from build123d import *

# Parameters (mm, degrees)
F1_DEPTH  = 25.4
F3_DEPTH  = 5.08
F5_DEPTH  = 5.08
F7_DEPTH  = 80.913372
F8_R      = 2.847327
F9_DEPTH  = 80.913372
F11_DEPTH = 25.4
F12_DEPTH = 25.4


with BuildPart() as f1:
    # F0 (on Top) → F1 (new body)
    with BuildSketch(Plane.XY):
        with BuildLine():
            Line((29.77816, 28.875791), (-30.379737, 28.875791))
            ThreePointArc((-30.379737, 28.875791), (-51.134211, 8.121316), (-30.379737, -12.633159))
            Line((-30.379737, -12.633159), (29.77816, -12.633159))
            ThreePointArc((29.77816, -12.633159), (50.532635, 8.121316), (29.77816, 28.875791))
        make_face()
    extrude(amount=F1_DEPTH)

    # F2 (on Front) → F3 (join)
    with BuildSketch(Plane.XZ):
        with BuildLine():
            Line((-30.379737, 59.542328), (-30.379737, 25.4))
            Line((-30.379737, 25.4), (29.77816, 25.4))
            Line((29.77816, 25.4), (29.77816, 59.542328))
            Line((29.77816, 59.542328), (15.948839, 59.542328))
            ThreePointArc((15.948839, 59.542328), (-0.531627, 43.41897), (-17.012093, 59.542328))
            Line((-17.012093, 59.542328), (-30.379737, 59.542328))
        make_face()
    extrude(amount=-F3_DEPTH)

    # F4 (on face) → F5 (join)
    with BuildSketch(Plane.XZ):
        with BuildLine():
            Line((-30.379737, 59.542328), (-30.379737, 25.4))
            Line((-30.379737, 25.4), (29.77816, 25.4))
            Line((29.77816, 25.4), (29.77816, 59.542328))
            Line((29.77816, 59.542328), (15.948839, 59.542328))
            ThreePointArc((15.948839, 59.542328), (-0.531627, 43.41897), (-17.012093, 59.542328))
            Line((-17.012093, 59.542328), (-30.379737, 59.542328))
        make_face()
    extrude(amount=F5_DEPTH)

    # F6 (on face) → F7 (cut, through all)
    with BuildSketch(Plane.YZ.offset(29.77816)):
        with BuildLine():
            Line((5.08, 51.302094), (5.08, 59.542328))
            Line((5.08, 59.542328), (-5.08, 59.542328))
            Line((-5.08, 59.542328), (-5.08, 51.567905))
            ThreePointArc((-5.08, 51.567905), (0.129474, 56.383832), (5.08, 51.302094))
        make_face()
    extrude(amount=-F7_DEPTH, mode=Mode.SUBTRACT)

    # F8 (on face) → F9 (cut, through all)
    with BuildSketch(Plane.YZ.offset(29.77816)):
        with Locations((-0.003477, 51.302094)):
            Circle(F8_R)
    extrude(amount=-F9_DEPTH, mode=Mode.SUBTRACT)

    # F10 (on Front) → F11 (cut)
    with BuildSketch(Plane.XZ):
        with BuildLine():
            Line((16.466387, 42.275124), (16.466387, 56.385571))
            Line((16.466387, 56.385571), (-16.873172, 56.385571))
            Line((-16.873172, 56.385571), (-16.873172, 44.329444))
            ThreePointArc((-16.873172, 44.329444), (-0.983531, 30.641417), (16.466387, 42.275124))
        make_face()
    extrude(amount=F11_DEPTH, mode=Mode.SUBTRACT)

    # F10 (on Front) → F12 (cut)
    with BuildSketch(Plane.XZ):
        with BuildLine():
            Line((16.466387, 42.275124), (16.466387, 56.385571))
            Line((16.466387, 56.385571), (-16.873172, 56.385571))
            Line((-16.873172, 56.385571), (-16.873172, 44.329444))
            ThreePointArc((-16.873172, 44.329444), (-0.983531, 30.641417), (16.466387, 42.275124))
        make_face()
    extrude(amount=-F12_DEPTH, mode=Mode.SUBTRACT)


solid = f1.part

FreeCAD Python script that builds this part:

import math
import FreeCAD as App
import Part
import Sketcher
Q = App.Units.Quantity

doc = App.newDocument("Part")
params = doc.addObject("Spreadsheet::Sheet", "Params")
for row, (alias, value) in enumerate([
    ("pad1_length", "1 in"),
    ("pad2_length", "0.2 in"),
    ("pad3_length", "0.2 in"),
    ("sketch4_width", "0.4 in"),
    ("pocket3_length", "1 in"),
    ("pocket4_length", "1 in"),
], start=1):
    params.set(f"A{row}", alias)
    params.set(f"B{row}", "=" + value)
    params.setAlias(f"B{row}", alias)

body = doc.addObject("PartDesign::Body", "Body")

sketch1 = body.newObject("Sketcher::SketchObject", "Sketch")
sketch1.AttachmentSupport = (doc.getObject("XY_Plane"), [""])
sketch1.MapMode = "FlatFace"
sketch1.addGeometry(Part.LineSegment(App.Vector(30, 29, 0), App.Vector(-30, 29, 0)), False)
sketch1.addGeometry(Part.ArcOfCircle(Part.Circle(App.Vector(-30, 8, 0), App.Vector(0, 0, 1), 21), math.radians(90), math.radians(270)), False)
sketch1.addGeometry(Part.LineSegment(App.Vector(-30, -13, 0), App.Vector(30, -13, 0)), False)
sketch1.addGeometry(Part.ArcOfCircle(Part.Circle(App.Vector(30, 8, 0), App.Vector(0, 0, 1), 21), math.radians(-90), math.radians(90)), False)
sketch1.addConstraint(Sketcher.Constraint("Tangent", 0, 2, 1, 1))
sketch1.addConstraint(Sketcher.Constraint("Tangent", 1, 2, 2, 1))
sketch1.addConstraint(Sketcher.Constraint("Tangent", 2, 2, 3, 1))
sketch1.addConstraint(Sketcher.Constraint("Tangent", 3, 2, 0, 1))
sketch1.addConstraint(Sketcher.Constraint("Horizontal", 0))
sketch1.addConstraint(Sketcher.Constraint("Horizontal", 2))
sketch1.addConstraint(Sketcher.Constraint("Radius", 1, 20.754475))
sketch1.addConstraint(Sketcher.Constraint("DistanceX", 0, 2, 0, 1, 60.157897))
sketch1.addConstraint(Sketcher.Constraint("DistanceX", -1, 1, 3, 3, 29.77816))
sketch1.addConstraint(Sketcher.Constraint("DistanceY", -1, 1, 0, 2, 28.875791))
pad1 = body.newObject("PartDesign::Pad", "Pad")
pad1.Profile = sketch1
pad1.setExpression("Length", "Params.pad1_length")

sketch2 = body.newObject("Sketcher::SketchObject", "Sketch001")
sketch2.AttachmentSupport = (doc.getObject("XZ_Plane"), [""])
sketch2.MapMode = "FlatFace"
sketch2.addGeometry(Part.LineSegment(App.Vector(-30, 60, 0), App.Vector(-30, 25, 0)), False)
sketch2.addGeometry(Part.LineSegment(App.Vector(-30, 25, 0), App.Vector(30, 25, 0)), False)
sketch2.addGeometry(Part.LineSegment(App.Vector(30, 25, 0), App.Vector(30, 60, 0)), False)
sketch2.addGeometry(Part.LineSegment(App.Vector(30, 60, 0), App.Vector(16, 60, 0)), False)
sketch2.addGeometry(Part.ArcOfCircle(Part.Circle(App.Vector(-1, 60, 0), App.Vector(0, 0, 1), 16), math.radians(-179), math.radians(-1)), False)
sketch2.addGeometry(Part.LineSegment(App.Vector(-17, 60, 0), App.Vector(-30, 60, 0)), False)
sketch2.addConstraint(Sketcher.Constraint("Coincident", 0, 2, 1, 1))
sketch2.addConstraint(Sketcher.Constraint("Coincident", 1, 2, 2, 1))
sketch2.addConstraint(Sketcher.Constraint("Coincident", 2, 2, 3, 1))
sketch2.addConstraint(Sketcher.Constraint("Coincident", 3, 2, 4, 2))
sketch2.addConstraint(Sketcher.Constraint("Coincident", 4, 1, 5, 1))
sketch2.addConstraint(Sketcher.Constraint("Coincident", 5, 2, 0, 1))
sketch2.addConstraint(Sketcher.Constraint("Vertical", 0))
sketch2.addConstraint(Sketcher.Constraint("Horizontal", 1))
sketch2.addConstraint(Sketcher.Constraint("Vertical", 2))
sketch2.addConstraint(Sketcher.Constraint("Horizontal", 3))
sketch2.addConstraint(Sketcher.Constraint("Horizontal", 5))
sketch2.addConstraint(Sketcher.Constraint("Horizontal", 3, 2, 4, 1))
sketch2.addConstraint(Sketcher.Constraint("DistanceY", -1, 1, 0, 2, Q("1 in")))
sketch2.addConstraint(Sketcher.Constraint("Radius", 4, 16.484421))
sketch2.addConstraint(Sketcher.Constraint("DistanceX", 3, 2, 3, 1, 13.829321))
sketch2.addConstraint(Sketcher.Constraint("DistanceX", 1, 1, 1, 2, 60.157897))
sketch2.addConstraint(Sketcher.Constraint("DistanceX", 5, 2, 5, 1, 13.367644))
sketch2.addConstraint(Sketcher.Constraint("DistanceY", 0, 2, 0, 1, 34.142328))
sketch2.addConstraint(Sketcher.Constraint("DistanceX", -1, 1, 1, 2, 29.77816))
pad2 = body.newObject("PartDesign::Pad", "Pad001")
pad2.Profile = sketch2
pad2.setExpression("Length", "Params.pad2_length")
pad2.Reversed = True

sketch3 = body.newObject("Sketcher::SketchObject", "Sketch002")
sketch3.AttachmentSupport = (doc.getObject("XZ_Plane"), [""])
sketch3.MapMode = "FlatFace"
sketch3.addGeometry(Part.LineSegment(App.Vector(-30, 60, 0), App.Vector(-30, 25, 0)), False)
sketch3.addGeometry(Part.LineSegment(App.Vector(-30, 25, 0), App.Vector(30, 25, 0)), False)
sketch3.addGeometry(Part.LineSegment(App.Vector(30, 25, 0), App.Vector(30, 60, 0)), False)
sketch3.addGeometry(Part.LineSegment(App.Vector(30, 60, 0), App.Vector(16, 60, 0)), False)
sketch3.addGeometry(Part.ArcOfCircle(Part.Circle(App.Vector(-1, 60, 0), App.Vector(0, 0, 1), 16), math.radians(-179), math.radians(-1)), False)
sketch3.addGeometry(Part.LineSegment(App.Vector(-17, 60, 0), App.Vector(-30, 60, 0)), False)
sketch3.addConstraint(Sketcher.Constraint("Coincident", 0, 2, 1, 1))
sketch3.addConstraint(Sketcher.Constraint("Coincident", 1, 2, 2, 1))
sketch3.addConstraint(Sketcher.Constraint("Coincident", 2, 2, 3, 1))
sketch3.addConstraint(Sketcher.Constraint("Coincident", 3, 2, 4, 2))
sketch3.addConstraint(Sketcher.Constraint("Coincident", 4, 1, 5, 1))
sketch3.addConstraint(Sketcher.Constraint("Coincident", 5, 2, 0, 1))
sketch3.addConstraint(Sketcher.Constraint("Vertical", 0))
sketch3.addConstraint(Sketcher.Constraint("Horizontal", 1))
sketch3.addConstraint(Sketcher.Constraint("Vertical", 2))
sketch3.addConstraint(Sketcher.Constraint("Horizontal", 3))
sketch3.addConstraint(Sketcher.Constraint("Horizontal", 5))
sketch3.addConstraint(Sketcher.Constraint("Horizontal", 3, 2, 4, 1))
sketch3.addConstraint(Sketcher.Constraint("DistanceY", -1, 1, 0, 2, Q("1 in")))
sketch3.addConstraint(Sketcher.Constraint("Radius", 4, 16.484421))
sketch3.addConstraint(Sketcher.Constraint("DistanceX", 3, 2, 3, 1, 13.829321))
sketch3.addConstraint(Sketcher.Constraint("DistanceX", 1, 1, 1, 2, 60.157897))
sketch3.addConstraint(Sketcher.Constraint("DistanceX", 5, 2, 5, 1, 13.367644))
sketch3.addConstraint(Sketcher.Constraint("DistanceY", 0, 2, 0, 1, 34.142328))
sketch3.addConstraint(Sketcher.Constraint("DistanceX", -1, 1, 1, 2, 29.77816))
pad3 = body.newObject("PartDesign::Pad", "Pad002")
pad3.Profile = sketch3
pad3.setExpression("Length", "Params.pad3_length")

sketch4 = body.newObject("Sketcher::SketchObject", "Sketch003")
sketch4.AttachmentSupport = (doc.getObject("YZ_Plane"), [""])
sketch4.MapMode = "FlatFace"
sketch4.AttachmentOffset = App.Placement(App.Vector(0, 0, 29.77816), App.Rotation())
sketch4.addGeometry(Part.LineSegment(App.Vector(5, 51, 0), App.Vector(5, 60, 0)), False)
sketch4.addGeometry(Part.LineSegment(App.Vector(5, 60, 0), App.Vector(-5, 60, 0)), False)
sketch4.addGeometry(Part.LineSegment(App.Vector(-5, 60, 0), App.Vector(-5, 52, 0)), False)
sketch4.addGeometry(Part.ArcOfCircle(Part.Circle(App.Vector(0, 51, 0), App.Vector(0, 0, 1), 5), math.radians(0), math.radians(177)), False)
sketch4.addConstraint(Sketcher.Constraint("Coincident", 0, 2, 1, 1))
sketch4.addConstraint(Sketcher.Constraint("Coincident", 1, 2, 2, 1))
sketch4.addConstraint(Sketcher.Constraint("Coincident", 2, 2, 3, 2))
sketch4.addConstraint(Sketcher.Constraint("Tangent", 3, 1, 0, 1))
sketch4.addConstraint(Sketcher.Constraint("Vertical", 0))
sketch4.addConstraint(Sketcher.Constraint("Horizontal", 1))
sketch4.addConstraint(Sketcher.Constraint("Vertical", 2))
sketch4.addConstraint(Sketcher.Constraint("DistanceX", 1, 2, 1, 1, Q("0.4 in")))
sketch4.addConstraint(Sketcher.Constraint("DistanceX", -1, 1, 0, 2, Q("0.2 in")))
sketch4.addConstraint(Sketcher.Constraint("Radius", 3, 5.083477))
sketch4.addConstraint(Sketcher.Constraint("DistanceY", 0, 1, 0, 2, 8.240234))
sketch4.addConstraint(Sketcher.Constraint("DistanceY", -1, 1, 3, 3, 51.302094))
sketch4.setExpression("Constraints[7]", "Params.sketch4_width")
pocket1 = body.newObject("PartDesign::Pocket", "Pocket")
pocket1.Profile = sketch4
pocket1.Type = "ThroughAll"

sketch5 = body.newObject("Sketcher::SketchObject", "Sketch004")
sketch5.AttachmentSupport = (doc.getObject("YZ_Plane"), [""])
sketch5.MapMode = "FlatFace"
sketch5.AttachmentOffset = App.Placement(App.Vector(0, 0, 29.77816), App.Rotation())
sketch5.addGeometry(Part.Circle(App.Vector(0, 51.3, 0), App.Vector(0, 0, 1), 2.8), False)
sketch5.addConstraint(Sketcher.Constraint("Diameter", 0, 5.694654))
sketch5.addConstraint(Sketcher.Constraint("DistanceX", 0, 3, -1, 1, 0.003477))
sketch5.addConstraint(Sketcher.Constraint("DistanceY", -1, 1, 0, 3, 51.302094))
pocket2 = body.newObject("PartDesign::Pocket", "Pocket001")
pocket2.Profile = sketch5
pocket2.Type = "ThroughAll"

sketch6 = body.newObject("Sketcher::SketchObject", "Sketch005")
sketch6.AttachmentSupport = (doc.getObject("XZ_Plane"), [""])
sketch6.MapMode = "FlatFace"
sketch6.addGeometry(Part.LineSegment(App.Vector(16, 42, 0), App.Vector(16, 56, 0)), False)
sketch6.addGeometry(Part.LineSegment(App.Vector(16, 56, 0), App.Vector(-17, 56, 0)), False)
sketch6.addGeometry(Part.LineSegment(App.Vector(-17, 56, 0), App.Vector(-17, 44, 0)), False)
sketch6.addGeometry(Part.ArcOfCircle(Part.Circle(App.Vector(0, 48, 0), App.Vector(0, 0, 1), 17), math.radians(-168), math.radians(-19)), False)
sketch6.addConstraint(Sketcher.Constraint("Coincident", 0, 2, 1, 1))
sketch6.addConstraint(Sketcher.Constraint("Coincident", 1, 2, 2, 1))
sketch6.addConstraint(Sketcher.Constraint("Coincident", 2, 2, 3, 1))
sketch6.addConstraint(Sketcher.Constraint("Coincident", 3, 2, 0, 1))
sketch6.addConstraint(Sketcher.Constraint("Vertical", 0))
sketch6.addConstraint(Sketcher.Constraint("Horizontal", 1))
sketch6.addConstraint(Sketcher.Constraint("Vertical", 2))
sketch6.addConstraint(Sketcher.Constraint("Radius", 3, 17.337286))
sketch6.addConstraint(Sketcher.Constraint("DistanceX", 1, 2, 1, 1, 33.339559))
sketch6.addConstraint(Sketcher.Constraint("DistanceY", 0, 1, 0, 2, 14.110447))
sketch6.addConstraint(Sketcher.Constraint("DistanceY", 2, 2, 2, 1, 12.056127))
sketch6.addConstraint(Sketcher.Constraint("DistanceY", -1, 1, 0, 2, 56.385571))
sketch6.addConstraint(Sketcher.Constraint("DistanceX", -1, 1, 3, 3, 0.082737))
pocket3 = body.newObject("PartDesign::Pocket", "Pocket002")
pocket3.Profile = sketch6
pocket3.setExpression("Length", "Params.pocket3_length")
pocket3.Reversed = True

sketch7 = body.newObject("Sketcher::SketchObject", "Sketch006")
sketch7.AttachmentSupport = (doc.getObject("XZ_Plane"), [""])
sketch7.MapMode = "FlatFace"
sketch7.addGeometry(Part.LineSegment(App.Vector(16, 42, 0), App.Vector(16, 56, 0)), False)
sketch7.addGeometry(Part.LineSegment(App.Vector(16, 56, 0), App.Vector(-17, 56, 0)), False)
sketch7.addGeometry(Part.LineSegment(App.Vector(-17, 56, 0), App.Vector(-17, 44, 0)), False)
sketch7.addGeometry(Part.ArcOfCircle(Part.Circle(App.Vector(0, 48, 0), App.Vector(0, 0, 1), 17), math.radians(-168), math.radians(-19)), False)
sketch7.addConstraint(Sketcher.Constraint("Coincident", 0, 2, 1, 1))
sketch7.addConstraint(Sketcher.Constraint("Coincident", 1, 2, 2, 1))
sketch7.addConstraint(Sketcher.Constraint("Coincident", 2, 2, 3, 1))
sketch7.addConstraint(Sketcher.Constraint("Coincident", 3, 2, 0, 1))
sketch7.addConstraint(Sketcher.Constraint("Vertical", 0))
sketch7.addConstraint(Sketcher.Constraint("Horizontal", 1))
sketch7.addConstraint(Sketcher.Constraint("Vertical", 2))
sketch7.addConstraint(Sketcher.Constraint("Radius", 3, 17.337286))
sketch7.addConstraint(Sketcher.Constraint("DistanceX", 1, 2, 1, 1, 33.339559))
sketch7.addConstraint(Sketcher.Constraint("DistanceY", 0, 1, 0, 2, 14.110447))
sketch7.addConstraint(Sketcher.Constraint("DistanceY", 2, 2, 2, 1, 12.056127))
sketch7.addConstraint(Sketcher.Constraint("DistanceY", -1, 1, 0, 2, 56.385571))
sketch7.addConstraint(Sketcher.Constraint("DistanceX", -1, 1, 3, 3, 0.082737))
pocket4 = body.newObject("PartDesign::Pocket", "Pocket003")
pocket4.Profile = sketch7
pocket4.setExpression("Length", "Params.pocket4_length")

doc.recompute()
